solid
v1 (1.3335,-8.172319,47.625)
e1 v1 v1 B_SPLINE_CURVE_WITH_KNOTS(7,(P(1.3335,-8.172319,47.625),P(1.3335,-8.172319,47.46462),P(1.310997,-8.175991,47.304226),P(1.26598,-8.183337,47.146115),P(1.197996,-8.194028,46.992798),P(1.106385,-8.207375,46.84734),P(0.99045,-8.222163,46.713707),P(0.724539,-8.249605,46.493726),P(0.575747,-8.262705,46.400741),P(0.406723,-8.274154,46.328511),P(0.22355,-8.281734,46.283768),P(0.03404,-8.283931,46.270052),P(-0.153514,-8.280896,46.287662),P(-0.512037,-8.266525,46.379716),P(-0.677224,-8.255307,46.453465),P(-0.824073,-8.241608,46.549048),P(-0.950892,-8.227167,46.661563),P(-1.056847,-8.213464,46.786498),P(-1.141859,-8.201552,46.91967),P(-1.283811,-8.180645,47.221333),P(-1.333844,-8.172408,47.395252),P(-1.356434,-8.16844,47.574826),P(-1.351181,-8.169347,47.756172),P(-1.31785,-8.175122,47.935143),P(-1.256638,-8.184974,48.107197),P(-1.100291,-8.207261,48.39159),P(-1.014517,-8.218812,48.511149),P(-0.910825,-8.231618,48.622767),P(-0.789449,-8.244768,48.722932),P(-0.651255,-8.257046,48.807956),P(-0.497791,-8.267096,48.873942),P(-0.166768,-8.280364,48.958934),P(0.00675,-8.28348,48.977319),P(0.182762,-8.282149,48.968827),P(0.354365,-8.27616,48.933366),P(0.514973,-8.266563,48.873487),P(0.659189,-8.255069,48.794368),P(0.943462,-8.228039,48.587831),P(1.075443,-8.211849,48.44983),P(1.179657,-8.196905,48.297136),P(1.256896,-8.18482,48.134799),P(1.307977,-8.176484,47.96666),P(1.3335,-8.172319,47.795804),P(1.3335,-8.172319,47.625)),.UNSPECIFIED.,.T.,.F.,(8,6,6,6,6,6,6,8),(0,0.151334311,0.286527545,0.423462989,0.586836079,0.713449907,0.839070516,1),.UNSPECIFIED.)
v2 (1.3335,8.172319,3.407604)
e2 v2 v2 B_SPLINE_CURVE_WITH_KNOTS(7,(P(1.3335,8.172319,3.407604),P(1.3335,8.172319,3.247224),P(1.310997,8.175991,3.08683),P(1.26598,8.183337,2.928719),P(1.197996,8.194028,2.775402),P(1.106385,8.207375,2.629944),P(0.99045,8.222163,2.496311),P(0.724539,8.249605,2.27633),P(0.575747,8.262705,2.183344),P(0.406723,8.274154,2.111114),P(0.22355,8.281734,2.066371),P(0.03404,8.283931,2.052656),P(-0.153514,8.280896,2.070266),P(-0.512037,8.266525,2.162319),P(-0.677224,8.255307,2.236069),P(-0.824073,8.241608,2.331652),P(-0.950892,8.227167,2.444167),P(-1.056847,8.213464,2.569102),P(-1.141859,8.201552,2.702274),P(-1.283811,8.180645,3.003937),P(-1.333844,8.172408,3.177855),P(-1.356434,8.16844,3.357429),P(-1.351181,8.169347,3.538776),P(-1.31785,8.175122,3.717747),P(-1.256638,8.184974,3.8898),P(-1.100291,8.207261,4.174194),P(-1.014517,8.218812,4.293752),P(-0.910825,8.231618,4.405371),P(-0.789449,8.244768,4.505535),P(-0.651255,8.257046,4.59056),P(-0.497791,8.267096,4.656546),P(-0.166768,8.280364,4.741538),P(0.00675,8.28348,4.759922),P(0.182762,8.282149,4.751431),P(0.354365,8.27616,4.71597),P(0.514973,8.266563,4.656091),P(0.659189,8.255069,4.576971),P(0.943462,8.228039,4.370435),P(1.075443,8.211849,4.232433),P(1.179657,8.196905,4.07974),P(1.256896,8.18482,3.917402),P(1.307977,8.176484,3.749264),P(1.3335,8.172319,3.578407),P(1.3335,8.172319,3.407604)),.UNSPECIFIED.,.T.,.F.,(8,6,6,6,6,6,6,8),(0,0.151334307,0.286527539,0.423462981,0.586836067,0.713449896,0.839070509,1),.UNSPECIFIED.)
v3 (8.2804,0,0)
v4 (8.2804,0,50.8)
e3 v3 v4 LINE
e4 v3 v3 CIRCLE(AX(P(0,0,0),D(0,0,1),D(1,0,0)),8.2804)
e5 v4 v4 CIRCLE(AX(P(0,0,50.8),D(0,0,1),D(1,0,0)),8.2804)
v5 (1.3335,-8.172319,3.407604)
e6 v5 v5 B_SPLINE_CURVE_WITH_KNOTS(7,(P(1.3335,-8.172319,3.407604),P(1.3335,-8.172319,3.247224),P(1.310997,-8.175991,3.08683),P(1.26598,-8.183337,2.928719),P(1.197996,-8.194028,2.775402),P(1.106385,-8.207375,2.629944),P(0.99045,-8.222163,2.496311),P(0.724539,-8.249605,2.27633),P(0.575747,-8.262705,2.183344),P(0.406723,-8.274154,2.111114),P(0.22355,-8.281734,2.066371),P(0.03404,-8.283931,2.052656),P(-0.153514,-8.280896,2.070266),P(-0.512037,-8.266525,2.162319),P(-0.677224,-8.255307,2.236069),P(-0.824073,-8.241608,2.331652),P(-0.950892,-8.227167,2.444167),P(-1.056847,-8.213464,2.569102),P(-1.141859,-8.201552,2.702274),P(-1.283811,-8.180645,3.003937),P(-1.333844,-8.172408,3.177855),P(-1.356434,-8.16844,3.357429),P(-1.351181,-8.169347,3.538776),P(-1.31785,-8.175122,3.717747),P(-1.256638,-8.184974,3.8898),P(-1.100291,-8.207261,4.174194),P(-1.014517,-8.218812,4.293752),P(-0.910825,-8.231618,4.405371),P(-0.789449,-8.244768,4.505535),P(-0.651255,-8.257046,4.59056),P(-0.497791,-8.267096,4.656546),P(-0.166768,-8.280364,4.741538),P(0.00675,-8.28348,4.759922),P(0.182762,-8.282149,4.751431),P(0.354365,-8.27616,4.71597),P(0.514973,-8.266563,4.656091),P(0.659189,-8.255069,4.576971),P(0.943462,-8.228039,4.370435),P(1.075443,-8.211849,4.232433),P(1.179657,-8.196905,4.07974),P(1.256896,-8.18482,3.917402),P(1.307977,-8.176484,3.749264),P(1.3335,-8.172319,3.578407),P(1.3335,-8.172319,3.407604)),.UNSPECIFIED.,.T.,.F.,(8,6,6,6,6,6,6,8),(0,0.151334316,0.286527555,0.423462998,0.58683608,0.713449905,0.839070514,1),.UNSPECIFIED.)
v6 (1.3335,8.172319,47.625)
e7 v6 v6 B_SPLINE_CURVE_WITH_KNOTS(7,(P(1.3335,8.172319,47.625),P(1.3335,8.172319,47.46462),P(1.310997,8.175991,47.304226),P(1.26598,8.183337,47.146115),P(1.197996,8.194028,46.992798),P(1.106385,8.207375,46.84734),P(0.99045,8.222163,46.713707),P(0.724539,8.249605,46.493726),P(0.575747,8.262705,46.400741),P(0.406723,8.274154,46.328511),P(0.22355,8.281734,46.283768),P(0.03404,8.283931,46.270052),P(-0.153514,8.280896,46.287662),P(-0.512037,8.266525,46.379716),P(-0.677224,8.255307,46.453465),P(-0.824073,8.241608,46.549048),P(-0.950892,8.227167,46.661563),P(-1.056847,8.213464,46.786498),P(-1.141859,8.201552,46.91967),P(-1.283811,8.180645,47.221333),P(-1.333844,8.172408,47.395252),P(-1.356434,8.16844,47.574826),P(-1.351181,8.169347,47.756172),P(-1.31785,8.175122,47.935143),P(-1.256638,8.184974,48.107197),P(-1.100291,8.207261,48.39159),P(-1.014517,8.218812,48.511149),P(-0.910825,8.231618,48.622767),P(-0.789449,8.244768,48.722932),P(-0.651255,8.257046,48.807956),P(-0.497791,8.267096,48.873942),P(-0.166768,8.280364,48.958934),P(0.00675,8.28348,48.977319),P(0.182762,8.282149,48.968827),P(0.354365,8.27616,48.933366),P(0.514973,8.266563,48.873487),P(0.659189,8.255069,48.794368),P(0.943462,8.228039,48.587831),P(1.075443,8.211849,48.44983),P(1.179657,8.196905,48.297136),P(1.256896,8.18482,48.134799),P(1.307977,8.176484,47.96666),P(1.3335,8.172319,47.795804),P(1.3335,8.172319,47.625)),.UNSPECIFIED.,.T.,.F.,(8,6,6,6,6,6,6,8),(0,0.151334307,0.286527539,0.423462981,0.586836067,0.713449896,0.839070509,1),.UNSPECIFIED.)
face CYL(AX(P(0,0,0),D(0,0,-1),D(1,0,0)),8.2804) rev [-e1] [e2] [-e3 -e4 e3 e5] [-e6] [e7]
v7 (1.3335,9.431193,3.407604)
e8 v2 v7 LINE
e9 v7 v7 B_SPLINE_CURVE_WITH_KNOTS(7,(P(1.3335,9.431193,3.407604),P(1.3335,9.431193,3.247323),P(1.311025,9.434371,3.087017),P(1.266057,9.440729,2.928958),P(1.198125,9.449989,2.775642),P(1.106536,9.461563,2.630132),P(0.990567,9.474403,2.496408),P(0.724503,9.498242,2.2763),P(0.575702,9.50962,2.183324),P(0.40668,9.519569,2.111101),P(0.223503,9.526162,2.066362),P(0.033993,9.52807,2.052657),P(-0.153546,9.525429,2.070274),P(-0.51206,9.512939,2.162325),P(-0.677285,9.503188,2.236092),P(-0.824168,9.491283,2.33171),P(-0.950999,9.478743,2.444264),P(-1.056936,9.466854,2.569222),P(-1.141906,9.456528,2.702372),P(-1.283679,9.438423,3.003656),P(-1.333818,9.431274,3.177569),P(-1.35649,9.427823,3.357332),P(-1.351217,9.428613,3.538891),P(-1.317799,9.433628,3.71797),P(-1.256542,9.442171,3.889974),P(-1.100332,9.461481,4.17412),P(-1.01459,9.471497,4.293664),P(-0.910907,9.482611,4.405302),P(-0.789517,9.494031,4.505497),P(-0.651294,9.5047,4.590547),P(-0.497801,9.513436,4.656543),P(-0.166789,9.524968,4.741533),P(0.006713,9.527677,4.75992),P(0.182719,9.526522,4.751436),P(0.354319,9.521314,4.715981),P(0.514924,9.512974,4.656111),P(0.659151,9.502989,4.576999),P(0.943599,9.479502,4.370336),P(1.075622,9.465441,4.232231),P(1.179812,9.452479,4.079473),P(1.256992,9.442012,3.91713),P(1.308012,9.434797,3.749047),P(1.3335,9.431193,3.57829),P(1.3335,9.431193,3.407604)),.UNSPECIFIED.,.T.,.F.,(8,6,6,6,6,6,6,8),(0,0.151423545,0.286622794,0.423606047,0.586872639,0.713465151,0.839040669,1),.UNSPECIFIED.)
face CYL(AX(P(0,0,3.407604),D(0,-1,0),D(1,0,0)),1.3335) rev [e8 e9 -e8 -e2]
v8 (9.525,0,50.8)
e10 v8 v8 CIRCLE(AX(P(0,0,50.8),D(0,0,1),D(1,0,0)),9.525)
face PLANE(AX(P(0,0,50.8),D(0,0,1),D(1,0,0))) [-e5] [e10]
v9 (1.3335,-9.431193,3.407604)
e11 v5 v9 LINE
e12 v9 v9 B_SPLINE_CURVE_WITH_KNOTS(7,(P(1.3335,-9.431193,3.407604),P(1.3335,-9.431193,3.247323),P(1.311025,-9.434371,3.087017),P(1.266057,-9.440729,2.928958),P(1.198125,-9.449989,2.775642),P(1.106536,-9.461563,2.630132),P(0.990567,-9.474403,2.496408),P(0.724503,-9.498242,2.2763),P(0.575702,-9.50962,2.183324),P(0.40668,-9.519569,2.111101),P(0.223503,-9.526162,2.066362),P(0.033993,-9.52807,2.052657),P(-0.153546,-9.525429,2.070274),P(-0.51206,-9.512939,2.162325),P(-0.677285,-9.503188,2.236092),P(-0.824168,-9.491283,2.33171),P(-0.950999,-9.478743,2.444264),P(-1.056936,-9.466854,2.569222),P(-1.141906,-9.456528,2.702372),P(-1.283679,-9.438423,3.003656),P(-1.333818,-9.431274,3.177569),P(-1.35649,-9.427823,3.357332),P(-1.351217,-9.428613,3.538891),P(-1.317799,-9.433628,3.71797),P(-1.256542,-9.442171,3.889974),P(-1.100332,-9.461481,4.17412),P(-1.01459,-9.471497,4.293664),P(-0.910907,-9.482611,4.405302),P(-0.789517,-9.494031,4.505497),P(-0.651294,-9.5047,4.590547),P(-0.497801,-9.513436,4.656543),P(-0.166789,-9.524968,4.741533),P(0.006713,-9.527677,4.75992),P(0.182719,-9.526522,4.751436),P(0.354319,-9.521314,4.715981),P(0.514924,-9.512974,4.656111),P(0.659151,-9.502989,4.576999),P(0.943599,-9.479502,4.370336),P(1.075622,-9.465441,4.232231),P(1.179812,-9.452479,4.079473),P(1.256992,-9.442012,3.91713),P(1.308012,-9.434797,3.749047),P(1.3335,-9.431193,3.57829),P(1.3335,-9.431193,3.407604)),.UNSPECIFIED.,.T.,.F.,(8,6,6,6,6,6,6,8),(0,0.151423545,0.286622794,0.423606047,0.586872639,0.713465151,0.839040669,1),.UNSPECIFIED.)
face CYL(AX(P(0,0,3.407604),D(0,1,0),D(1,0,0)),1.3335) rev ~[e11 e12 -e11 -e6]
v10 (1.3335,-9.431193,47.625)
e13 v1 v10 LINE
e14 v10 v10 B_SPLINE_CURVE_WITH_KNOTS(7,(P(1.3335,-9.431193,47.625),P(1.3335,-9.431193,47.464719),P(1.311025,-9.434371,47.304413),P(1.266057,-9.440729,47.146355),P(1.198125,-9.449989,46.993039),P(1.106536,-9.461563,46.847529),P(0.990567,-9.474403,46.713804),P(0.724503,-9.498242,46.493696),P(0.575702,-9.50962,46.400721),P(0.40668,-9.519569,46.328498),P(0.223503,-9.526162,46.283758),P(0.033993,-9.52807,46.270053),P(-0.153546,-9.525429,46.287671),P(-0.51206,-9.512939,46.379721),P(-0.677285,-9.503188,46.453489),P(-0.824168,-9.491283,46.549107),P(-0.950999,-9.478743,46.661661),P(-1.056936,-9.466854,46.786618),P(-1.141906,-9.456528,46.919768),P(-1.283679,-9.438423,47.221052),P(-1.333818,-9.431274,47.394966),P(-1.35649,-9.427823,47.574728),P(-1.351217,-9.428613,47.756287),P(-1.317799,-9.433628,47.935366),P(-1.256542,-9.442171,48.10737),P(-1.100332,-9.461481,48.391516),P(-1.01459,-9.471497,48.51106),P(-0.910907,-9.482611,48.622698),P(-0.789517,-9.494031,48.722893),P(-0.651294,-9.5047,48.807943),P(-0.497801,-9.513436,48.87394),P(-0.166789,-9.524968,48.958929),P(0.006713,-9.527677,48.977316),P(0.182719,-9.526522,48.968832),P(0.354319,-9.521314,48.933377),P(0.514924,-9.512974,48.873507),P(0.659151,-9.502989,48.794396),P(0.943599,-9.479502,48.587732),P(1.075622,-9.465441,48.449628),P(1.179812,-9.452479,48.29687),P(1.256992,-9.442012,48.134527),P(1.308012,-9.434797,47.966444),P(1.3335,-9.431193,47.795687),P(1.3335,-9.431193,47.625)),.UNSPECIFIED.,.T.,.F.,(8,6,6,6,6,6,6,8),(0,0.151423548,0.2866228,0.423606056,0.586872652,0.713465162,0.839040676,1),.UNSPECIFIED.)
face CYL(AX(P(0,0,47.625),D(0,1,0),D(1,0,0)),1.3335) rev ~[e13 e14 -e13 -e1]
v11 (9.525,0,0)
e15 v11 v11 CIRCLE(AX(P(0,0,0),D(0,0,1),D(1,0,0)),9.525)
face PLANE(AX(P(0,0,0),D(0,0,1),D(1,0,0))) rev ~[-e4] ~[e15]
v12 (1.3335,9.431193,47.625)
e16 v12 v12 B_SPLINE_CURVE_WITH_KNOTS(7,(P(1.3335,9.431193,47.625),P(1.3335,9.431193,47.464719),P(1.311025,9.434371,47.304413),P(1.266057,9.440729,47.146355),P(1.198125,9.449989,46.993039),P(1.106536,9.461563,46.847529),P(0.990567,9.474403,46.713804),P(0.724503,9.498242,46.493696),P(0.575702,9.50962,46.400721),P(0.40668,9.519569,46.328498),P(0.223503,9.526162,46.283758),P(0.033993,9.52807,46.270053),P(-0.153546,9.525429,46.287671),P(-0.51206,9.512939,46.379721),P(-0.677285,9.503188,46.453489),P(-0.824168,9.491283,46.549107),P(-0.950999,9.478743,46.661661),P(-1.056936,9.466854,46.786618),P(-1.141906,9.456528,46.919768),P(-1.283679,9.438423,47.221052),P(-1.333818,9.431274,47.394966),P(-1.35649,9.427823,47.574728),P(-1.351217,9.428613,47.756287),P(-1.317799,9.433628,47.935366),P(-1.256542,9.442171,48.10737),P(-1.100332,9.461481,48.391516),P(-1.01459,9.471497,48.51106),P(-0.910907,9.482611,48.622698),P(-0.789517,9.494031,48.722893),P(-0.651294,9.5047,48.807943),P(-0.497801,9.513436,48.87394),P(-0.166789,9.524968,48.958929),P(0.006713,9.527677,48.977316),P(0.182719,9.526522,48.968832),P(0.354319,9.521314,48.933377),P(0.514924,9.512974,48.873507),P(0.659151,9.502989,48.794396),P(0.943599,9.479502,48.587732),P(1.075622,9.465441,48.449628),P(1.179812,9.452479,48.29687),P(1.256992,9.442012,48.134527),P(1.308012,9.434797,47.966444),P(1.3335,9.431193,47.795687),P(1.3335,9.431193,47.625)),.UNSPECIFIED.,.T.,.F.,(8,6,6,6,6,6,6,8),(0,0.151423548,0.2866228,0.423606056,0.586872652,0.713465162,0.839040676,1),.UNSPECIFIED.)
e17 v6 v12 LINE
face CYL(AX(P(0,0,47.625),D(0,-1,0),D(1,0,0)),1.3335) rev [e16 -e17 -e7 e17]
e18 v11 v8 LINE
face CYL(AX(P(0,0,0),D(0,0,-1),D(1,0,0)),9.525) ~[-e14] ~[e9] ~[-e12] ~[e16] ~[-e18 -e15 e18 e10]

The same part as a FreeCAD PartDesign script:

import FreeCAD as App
import Part
import Sketcher
Q = App.Units.Quantity

doc = App.newDocument("Part")
body = doc.addObject("PartDesign::Body", "Body")

# Sketch on XY plane
sketch1 = body.newObject("Sketcher::SketchObject", "Sketch")
sketch1.AttachmentSupport = (doc.getObject("XY_Plane"), [""])
sketch1.MapMode = "FlatFace"
sketch1.addGeometry([
    Part.Circle(App.Vector(0, 0, 0), App.Vector(0, 0, 1), 10),
    Part.Circle(App.Vector(0, 0, 0), App.Vector(0, 0, 1), 8),
], False)
sketch1.addConstraint([
    Sketcher.Constraint("Coincident", 0, 3, -1, 1),
    Sketcher.Constraint("Coincident", 1, 3, -1, 1),
    Sketcher.Constraint("Diameter", 0, Q("0.75 in")),
    Sketcher.Constraint("Diameter", 1, Q("0.652 in")),
])
pad1 = body.newObject("PartDesign::Pad", "Pad")
pad1.Profile = sketch1
pad1.Length = Q("2 in")

# Sketch on XZ plane
sketch2 = body.newObject("Sketcher::SketchObject", "Sketch001")
sketch2.AttachmentSupport = (doc.getObject("XZ_Plane"), [""])
sketch2.MapMode = "FlatFace"
sketch2.addGeometry([
    Part.Circle(App.Vector(0, 47.6, 0), App.Vector(0, 0, 1), 1.3),
    Part.Circle(App.Vector(0, 3.4, 0), App.Vector(0, 0, 1), 1.3),
], False)
sketch2.addConstraint([
    Sketcher.Constraint("Equal", 0, 1),
    Sketcher.Constraint("PointOnObject", 0, 3, -2),
    Sketcher.Constraint("PointOnObject", 1, 3, -2),
    Sketcher.Constraint("Diameter", 0, Q("0.105 in")),
    Sketcher.Constraint("DistanceY", -1, 1, 0, 3, Q("1.875 in")),
    Sketcher.Constraint("DistanceY", -1, 1, 1, 3, 3.407604),
])
pocket1 = body.newObject("PartDesign::Pocket", "Pocket")
pocket1.Profile = sketch2
pocket1.Type = "ThroughAll"
pocket1.Midplane = True

doc.recompute()
